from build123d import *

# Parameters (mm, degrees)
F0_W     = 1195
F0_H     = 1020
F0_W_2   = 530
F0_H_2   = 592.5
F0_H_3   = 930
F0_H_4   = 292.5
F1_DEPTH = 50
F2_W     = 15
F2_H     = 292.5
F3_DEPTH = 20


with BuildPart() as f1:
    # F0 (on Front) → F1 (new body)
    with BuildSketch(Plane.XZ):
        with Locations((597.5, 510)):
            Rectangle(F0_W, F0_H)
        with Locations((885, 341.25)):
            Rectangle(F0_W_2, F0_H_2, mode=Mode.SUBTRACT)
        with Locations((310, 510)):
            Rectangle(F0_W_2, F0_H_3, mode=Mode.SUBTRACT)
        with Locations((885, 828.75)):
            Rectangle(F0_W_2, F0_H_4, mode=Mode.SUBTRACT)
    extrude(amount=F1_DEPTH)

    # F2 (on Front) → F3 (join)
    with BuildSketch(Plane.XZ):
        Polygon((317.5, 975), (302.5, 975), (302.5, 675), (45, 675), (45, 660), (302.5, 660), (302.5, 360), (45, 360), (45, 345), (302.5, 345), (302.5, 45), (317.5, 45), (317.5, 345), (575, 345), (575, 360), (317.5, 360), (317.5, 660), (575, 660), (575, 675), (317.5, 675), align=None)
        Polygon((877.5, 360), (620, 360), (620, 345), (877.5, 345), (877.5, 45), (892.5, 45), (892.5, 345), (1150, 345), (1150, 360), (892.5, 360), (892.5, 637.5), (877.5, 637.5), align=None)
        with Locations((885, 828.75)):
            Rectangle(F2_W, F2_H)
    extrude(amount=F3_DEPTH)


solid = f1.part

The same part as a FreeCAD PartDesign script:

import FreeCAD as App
import Part
import Sketcher

V = App.Vector
Q = App.Units.Quantity


def add_polygon(sketch, points):
    """Adds a closed chain of lines whose ends are joined by coincident constraints."""
    first, n = sketch.GeometryCount, len(points)
    for a, b in zip(points, points[1:] + points[:1]):
        sketch.addGeometry(Part.LineSegment(App.Vector(*a, 0), App.Vector(*b, 0)), False)
    for i in range(n):
        sketch.addConstraint(Sketcher.Constraint("Coincident", first + i, 2, first + (i + 1) % n, 1))

doc = App.newDocument("Part")
body = doc.addObject("PartDesign::Body", "Body")

# Sketch on XZ plane
sketch1 = body.newObject("Sketcher::SketchObject", "Sketch")
sketch1.AttachmentSupport = (doc.getObject("XZ_Plane"), [""])
sketch1.MapMode = "FlatFace"
add_polygon(sketch1, [(0, 1020), (0, 0), (1195, 0), (1195, 1020)])  # lines 0-3
add_polygon(sketch1, [(1150, 45), (620, 45), (620, 638), (1150, 638)])  # lines 4-7
add_polygon(sketch1, [(575, 45), (45, 45), (45, 975), (575, 975)])  # lines 8-11
add_polygon(sketch1, [(1150, 682), (620, 682), (620, 975), (1150, 975)])  # lines 12-15
sketch1.addConstraint([
    Sketcher.Constraint("Vertical", 0),
    Sketcher.Constraint("Horizontal", 1),
    Sketcher.Constraint("Vertical", 2),
    Sketcher.Constraint("Horizontal", 3),
    Sketcher.Constraint("Horizontal", 4),
    Sketcher.Constraint("Vertical", 5),
    Sketcher.Constraint("Horizontal", 6),
    Sketcher.Constraint("Vertical", 7),
    Sketcher.Constraint("Horizontal", 8),
    Sketcher.Constraint("Vertical", 9),
    Sketcher.Constraint("Horizontal", 10),
    Sketcher.Constraint("Vertical", 11),
    Sketcher.Constraint("Horizontal", 12),
    Sketcher.Constraint("Vertical", 13),
    Sketcher.Constraint("Horizontal", 14),
    Sketcher.Constraint("Vertical", 15),
    Sketcher.Constraint("Coincident", 0, 2, -1, 1),
    Sketcher.Constraint("Horizontal", 7, 2, 8, 2),
    Sketcher.Constraint("Horizontal", 10, 2, 13, 2),
    Sketcher.Constraint("Vertical", 5, 2, 12, 2),
    Sketcher.Constraint("Vertical", 7, 2, 14, 2),
    Sketcher.Constraint("Equal", 6, 8),
    Sketcher.Constraint("DistanceX", 1, 1, 1, 2, Q("1195 mm")),
    Sketcher.Constraint("DistanceX", 4, 2, 4, 1, Q("530 mm")),
    Sketcher.Constraint("DistanceY", 0, 2, 0, 1, Q("1020 mm")),
    Sketcher.Constraint("DistanceY", 9, 1, 9, 2, Q("930 mm")),
    Sketcher.Constraint("DistanceY", 5, 1, 5, 2, Q("592.5 mm")),
    Sketcher.Constraint("DistanceY", 13, 1, 13, 2, Q("292.5 mm")),
    Sketcher.Constraint("DistanceX", -1, 1, 4, 2, Q("620 mm")),
    Sketcher.Constraint("DistanceY", -1, 1, 4, 2, Q("45 mm")),
    Sketcher.Constraint("DistanceX", -1, 1, 8, 2, Q("45 mm")),
])
pad1 = body.newObject("PartDesign::Pad", "Pad")
pad1.Profile = sketch1
pad1.Length = 50

# Sketch on XZ plane
sketch2 = body.newObject("Sketcher::SketchObject", "Sketch001")
sketch2.AttachmentSupport = (doc.getObject("XZ_Plane"), [""])
sketch2.MapMode = "FlatFace"
add_polygon(sketch2, [(318, 975), (302, 975), (302, 675), (45, 675), (45, 660), (302, 660), (302, 360), (45, 360), (45, 345), (302, 345), (302, 45), (318, 45), (318, 345), (575, 345), (575, 360), (318, 360), (318, 660), (575, 660), (575, 675), (318, 675)])  # lines 0-19
add_polygon(sketch2, [(878, 360), (620, 360), (620, 345), (878, 345), (878, 45), (892, 45), (892, 345), (1150, 345), (1150, 360), (892, 360), (892, 638), (878, 638)])  # lines 20-31
add_polygon(sketch2, [(878, 975), (878, 682), (892, 682), (892, 975)])  # lines 32-35
sketch2.addConstraint([
    Sketcher.Constraint("Horizontal", 0),
    Sketcher.Constraint("Vertical", 1),
    Sketcher.Constraint("Horizontal", 2),
    Sketcher.Constraint("Vertical", 3),
    Sketcher.Constraint("Horizontal", 4),
    Sketcher.Constraint("Vertical", 5),
    Sketcher.Constraint("Horizontal", 6),
    Sketcher.Constraint("Vertical", 7),
    Sketcher.Constraint("Horizontal", 8),
    Sketcher.Constraint("Vertical", 9),
    Sketcher.Constraint("Horizontal", 10),
    Sketcher.Constraint("Vertical", 11),
    Sketcher.Constraint("Horizontal", 12),
    Sketcher.Constraint("Vertical", 13),
    Sketcher.Constraint("Horizontal", 14),
    Sketcher.Constraint("Vertical", 15),
    Sketcher.Constraint("Horizontal", 16),
    Sketcher.Constraint("Vertical", 17),
    Sketcher.Constraint("Horizontal", 18),
    Sketcher.Constraint("Vertical", 19),
    Sketcher.Constraint("Horizontal", 20),
    Sketcher.Constraint("Vertical", 21),
    Sketcher.Constraint("Horizontal", 22),
    Sketcher.Constraint("Vertical", 23),
    Sketcher.Constraint("Horizontal", 24),
    Sketcher.Constraint("Vertical", 25),
    Sketcher.Constraint("Horizontal", 26),
    Sketcher.Constraint("Vertical", 27),
    Sketcher.Constraint("Horizontal", 28),
    Sketcher.Constraint("Vertical", 29),
    Sketcher.Constraint("Horizontal", 30),
    Sketcher.Constraint("Vertical", 31),
    Sketcher.Constraint("Vertical", 32),
    Sketcher.Constraint("Horizontal", 33),
    Sketcher.Constraint("Vertical", 34),
    Sketcher.Constraint("Horizontal", 35),
    Sketcher.Constraint("Horizontal", 8, 2, 11, 2),
    Sketcher.Constraint("Horizontal", 6, 2, 13, 2),
    Sketcher.Constraint("Horizontal", 4, 2, 15, 2),
    Sketcher.Constraint("Horizontal", 2, 2, 17, 2),
    Sketcher.Constraint("Horizontal", 14, 2, 20, 2),
    Sketcher.Constraint("Horizontal", 12, 2, 21, 2),
    Sketcher.Constraint("Horizontal", 10, 2, 23, 2),
    Sketcher.Constraint("Horizontal", 22, 2, 25, 2),
    Sketcher.Constraint("Horizontal", 20, 2, 27, 2),
    Sketcher.Constraint("Horizontal", 19, 2, 34, 2),
    Sketcher.Constraint("Vertical", 1, 2, 4, 2),
    Sketcher.Constraint("Vertical", 3, 2, 6, 2),
    Sketcher.Constraint("Vertical", 5, 2, 8, 2),
    Sketcher.Constraint("Vertical", 11, 2, 14, 2),
    Sketcher.Constraint("Vertical", 13, 2, 16, 2),
    Sketcher.Constraint("Vertical", 15, 2, 18, 2),
    Sketcher.Constraint("Vertical", 25, 2, 28, 2),
    Sketcher.Constraint("Vertical", 23, 2, 30, 2),
    Sketcher.Constraint("Vertical", 31, 2, 32, 2),
    Sketcher.Constraint("Vertical", 29, 2, 33, 2),
    Sketcher.Constraint("Equal", 8, 12),
    Sketcher.Constraint("Equal", 18, 20),
    Sketcher.Constraint("Equal", 10, 24),
    Sketcher.Constraint("Equal", 22, 26),
    Sketcher.Constraint("Equal", 35, 3),
    Sketcher.Constraint("Equal", 1, 5),
    Sketcher.Constraint("Equal", 3, 7),
    Sketcher.Constraint("Equal", 5, 9),
    Sketcher.Constraint("DistanceX", 0, 2, 0, 1, Q("15 mm")),
    Sketcher.Constraint("DistanceY", 1, 2, 1, 1, Q("300 mm")),
    Sketcher.Constraint("DistanceX", 2, 2, 2, 1, Q("257.5 mm")),
    Sketcher.Constraint("DistanceY", 29, 1, 29, 2, Q("277.5 mm")),
    Sketcher.Constraint("DistanceY", 32, 2, 32, 1, Q("292.5 mm")),
    Sketcher.Constraint("DistanceY", -1, 1, 0, 2, Q("975 mm")),
    Sketcher.Constraint("DistanceX", -1, 1, 2, 2, Q("45 mm")),
    Sketcher.Constraint("DistanceX", -1, 1, 20, 2, Q("620 mm")),
])
pad2 = body.newObject("PartDesign::Pad", "Pad001")
pad2.Profile = sketch2
pad2.Length = 20

doc.recompute()
